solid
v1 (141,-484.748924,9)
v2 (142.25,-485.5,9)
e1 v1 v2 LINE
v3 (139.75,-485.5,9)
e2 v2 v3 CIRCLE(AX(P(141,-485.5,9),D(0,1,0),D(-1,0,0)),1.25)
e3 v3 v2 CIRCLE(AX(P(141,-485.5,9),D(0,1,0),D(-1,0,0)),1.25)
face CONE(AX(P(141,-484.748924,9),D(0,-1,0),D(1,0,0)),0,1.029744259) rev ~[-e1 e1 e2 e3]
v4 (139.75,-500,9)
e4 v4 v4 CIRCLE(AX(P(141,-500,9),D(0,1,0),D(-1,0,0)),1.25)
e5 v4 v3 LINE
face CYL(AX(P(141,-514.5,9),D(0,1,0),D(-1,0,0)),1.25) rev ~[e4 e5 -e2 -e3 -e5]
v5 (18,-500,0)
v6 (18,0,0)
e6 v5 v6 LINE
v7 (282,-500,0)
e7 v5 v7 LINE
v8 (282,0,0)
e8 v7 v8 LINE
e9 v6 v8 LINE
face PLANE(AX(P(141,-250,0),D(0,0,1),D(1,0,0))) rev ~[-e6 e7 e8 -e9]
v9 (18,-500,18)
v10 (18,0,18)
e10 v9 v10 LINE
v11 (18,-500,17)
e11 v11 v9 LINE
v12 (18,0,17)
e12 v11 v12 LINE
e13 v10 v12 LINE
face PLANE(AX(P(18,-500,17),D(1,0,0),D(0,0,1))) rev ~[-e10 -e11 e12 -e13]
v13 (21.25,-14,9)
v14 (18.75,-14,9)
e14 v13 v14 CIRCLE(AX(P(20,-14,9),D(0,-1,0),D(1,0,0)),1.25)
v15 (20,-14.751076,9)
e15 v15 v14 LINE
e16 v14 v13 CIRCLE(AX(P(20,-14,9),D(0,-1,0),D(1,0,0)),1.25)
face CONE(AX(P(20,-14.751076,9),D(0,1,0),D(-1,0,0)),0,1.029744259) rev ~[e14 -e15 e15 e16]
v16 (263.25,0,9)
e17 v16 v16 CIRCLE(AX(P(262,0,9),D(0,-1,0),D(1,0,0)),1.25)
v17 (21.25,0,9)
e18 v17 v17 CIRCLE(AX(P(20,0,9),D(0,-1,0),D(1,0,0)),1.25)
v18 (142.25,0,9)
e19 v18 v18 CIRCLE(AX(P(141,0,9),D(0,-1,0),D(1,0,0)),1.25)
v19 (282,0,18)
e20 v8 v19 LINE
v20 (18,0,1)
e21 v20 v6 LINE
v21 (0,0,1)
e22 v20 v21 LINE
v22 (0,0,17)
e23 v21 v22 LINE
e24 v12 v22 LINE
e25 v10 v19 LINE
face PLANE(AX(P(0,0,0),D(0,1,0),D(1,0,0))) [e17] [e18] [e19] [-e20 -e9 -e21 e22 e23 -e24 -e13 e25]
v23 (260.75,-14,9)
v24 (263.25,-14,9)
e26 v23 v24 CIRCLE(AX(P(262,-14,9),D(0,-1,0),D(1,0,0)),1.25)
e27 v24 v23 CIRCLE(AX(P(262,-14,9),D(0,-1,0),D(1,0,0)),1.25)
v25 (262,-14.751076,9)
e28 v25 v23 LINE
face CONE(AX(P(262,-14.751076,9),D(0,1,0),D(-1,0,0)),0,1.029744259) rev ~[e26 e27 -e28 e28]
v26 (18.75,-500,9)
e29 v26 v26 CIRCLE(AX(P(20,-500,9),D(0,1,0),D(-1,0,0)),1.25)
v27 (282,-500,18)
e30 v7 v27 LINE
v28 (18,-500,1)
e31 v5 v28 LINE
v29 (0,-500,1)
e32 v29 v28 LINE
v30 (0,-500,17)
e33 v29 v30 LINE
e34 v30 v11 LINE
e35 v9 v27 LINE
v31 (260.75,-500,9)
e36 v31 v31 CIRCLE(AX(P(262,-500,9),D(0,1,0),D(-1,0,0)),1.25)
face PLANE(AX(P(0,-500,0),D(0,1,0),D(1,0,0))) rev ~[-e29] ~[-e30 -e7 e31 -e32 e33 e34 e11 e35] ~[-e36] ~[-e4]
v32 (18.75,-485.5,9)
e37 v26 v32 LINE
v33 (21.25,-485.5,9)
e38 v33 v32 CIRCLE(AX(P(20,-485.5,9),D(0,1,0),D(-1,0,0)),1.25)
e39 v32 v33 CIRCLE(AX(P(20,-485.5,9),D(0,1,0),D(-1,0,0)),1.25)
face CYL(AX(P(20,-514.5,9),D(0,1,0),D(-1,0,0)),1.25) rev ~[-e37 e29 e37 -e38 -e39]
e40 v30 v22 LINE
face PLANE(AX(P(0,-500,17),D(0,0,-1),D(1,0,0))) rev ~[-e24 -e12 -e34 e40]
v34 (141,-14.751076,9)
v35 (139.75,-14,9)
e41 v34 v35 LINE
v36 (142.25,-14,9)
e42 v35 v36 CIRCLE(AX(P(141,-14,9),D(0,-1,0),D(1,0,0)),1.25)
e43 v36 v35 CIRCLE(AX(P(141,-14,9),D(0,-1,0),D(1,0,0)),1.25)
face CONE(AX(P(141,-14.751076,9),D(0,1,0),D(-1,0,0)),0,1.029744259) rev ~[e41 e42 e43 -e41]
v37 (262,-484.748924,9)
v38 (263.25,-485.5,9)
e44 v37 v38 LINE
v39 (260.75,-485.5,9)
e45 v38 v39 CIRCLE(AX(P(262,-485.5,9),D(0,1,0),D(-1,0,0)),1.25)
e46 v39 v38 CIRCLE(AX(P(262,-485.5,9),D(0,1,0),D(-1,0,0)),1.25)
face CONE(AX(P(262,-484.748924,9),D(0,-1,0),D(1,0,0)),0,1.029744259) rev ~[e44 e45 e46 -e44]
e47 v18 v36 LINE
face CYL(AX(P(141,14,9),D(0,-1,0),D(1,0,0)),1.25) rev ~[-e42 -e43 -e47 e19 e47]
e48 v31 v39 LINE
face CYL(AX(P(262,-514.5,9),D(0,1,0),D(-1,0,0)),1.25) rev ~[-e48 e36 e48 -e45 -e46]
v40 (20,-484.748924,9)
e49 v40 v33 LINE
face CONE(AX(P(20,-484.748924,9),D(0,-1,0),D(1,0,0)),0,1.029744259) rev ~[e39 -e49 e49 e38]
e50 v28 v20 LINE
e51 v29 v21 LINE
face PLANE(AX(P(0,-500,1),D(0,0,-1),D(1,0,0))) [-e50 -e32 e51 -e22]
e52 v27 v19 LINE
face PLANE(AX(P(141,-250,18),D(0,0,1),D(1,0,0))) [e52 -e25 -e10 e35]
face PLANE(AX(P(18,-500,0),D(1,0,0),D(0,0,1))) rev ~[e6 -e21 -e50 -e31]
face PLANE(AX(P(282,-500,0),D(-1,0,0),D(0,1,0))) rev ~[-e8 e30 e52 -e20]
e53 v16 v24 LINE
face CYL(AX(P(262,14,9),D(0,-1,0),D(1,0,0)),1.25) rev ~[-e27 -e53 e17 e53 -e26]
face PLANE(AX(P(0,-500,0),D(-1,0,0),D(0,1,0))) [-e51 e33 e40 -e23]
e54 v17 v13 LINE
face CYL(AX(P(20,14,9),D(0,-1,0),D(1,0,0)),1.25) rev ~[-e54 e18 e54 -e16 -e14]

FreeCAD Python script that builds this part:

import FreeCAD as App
import Part
import Sketcher

V = App.Vector

doc = App.newDocument("Part")
body = doc.addObject("PartDesign::Body", "Body")

# Sketch on XY plane
sketch1 = doc.addObject("Sketcher::SketchObject", "Sketch")
body.addObject(sketch1)
sketch1.AttachmentSupport = (doc.XY_Plane, [""])
sketch1.MapMode = "FlatFace"
sketch1.addGeometry([
    Part.LineSegment(V(0, 0, 0), V(0, -500, 0)),
    Part.LineSegment(V(0, -500, 0), V(282, -500, 0)),
    Part.LineSegment(V(282, -500, 0), V(282, 0, 0)),
    Part.LineSegment(V(282, 0, 0), V(0, 0, 0)),
], False)
sketch1.addConstraint([
    Sketcher.Constraint("Coincident", 0, 2, 1, 1),
    Sketcher.Constraint("Coincident", 1, 2, 2, 1),
    Sketcher.Constraint("Coincident", 2, 2, 3, 1),
    Sketcher.Constraint("Coincident", 3, 2, 0, 1),
    Sketcher.Constraint("Vertical", 0),
    Sketcher.Constraint("Horizontal", 1),
    Sketcher.Constraint("Vertical", 2),
    Sketcher.Constraint("Horizontal", 3),
    Sketcher.Constraint("Coincident", 3, 2, -1, 1),
    Sketcher.Constraint("DistanceX", 1, 1, 1, 2, 282.0),
    Sketcher.Constraint("DistanceY", 0, 2, 0, 1, 500.0),
])
pad1 = doc.addObject("PartDesign::Pad", "Pad")
body.addObject(pad1)
pad1.Profile = sketch1
pad1.Length = 18

# Sketch on XZ plane
sketch2 = doc.addObject("Sketcher::SketchObject", "Sketch001")
body.addObject(sketch2)
sketch2.AttachmentSupport = (doc.XZ_Plane, [""])
sketch2.MapMode = "FlatFace"
sketch2.AttachmentOffset = App.Placement(V(0, 0, 500), App.Rotation())
sketch2.addGeometry([
    Part.Circle(V(20, 9, 0), V(0, 0, 1), 1.25),
    Part.Circle(V(141, 9, 0), V(0, 0, 1), 1.25),
    Part.Circle(V(262, 9, 0), V(0, 0, 1), 1.25),
], False)
sketch2.addConstraint([
    Sketcher.Constraint("Equal", 0, 1),
    Sketcher.Constraint("Equal", 1, 2),
    Sketcher.Constraint("Horizontal", 0, 3, 1, 3),
    Sketcher.Constraint("Horizontal", 1, 3, 2, 3),
    Sketcher.Constraint("Diameter", 0, 2.5),
    Sketcher.Constraint("DistanceX", -1, 1, 0, 3, 20.0),
    Sketcher.Constraint("DistanceY", -1, 1, 0, 3, 9.0),
    Sketcher.Constraint("DistanceX", -1, 1, 1, 3, 141.0),
    Sketcher.Constraint("DistanceX", -1, 1, 2, 3, 262.0),
])
doc.recompute()
hole = doc.addObject("PartDesign::Hole", "Hole")
body.addObject(hole)
hole.Profile = sketch2
hole.ThreadType = "None"
hole.Diameter = 2.5
hole.DepthType = "Dimension"
hole.Depth = 14.5
hole.DrillPoint = "Angled"
hole.DrillPointAngle = 118

# Sketch on XZ plane
sketch3 = doc.addObject("Sketcher::SketchObject", "Sketch002")
body.addObject(sketch3)
sketch3.AttachmentSupport = (doc.XZ_Plane, [""])
sketch3.MapMode = "FlatFace"
sketch3.addGeometry([
    Part.Circle(V(262, 9, 0), V(0, 0, 1), 1.25),
    Part.Circle(V(141, 9, 0), V(0, 0, 1), 1.25),
    Part.Circle(V(20, 9, 0), V(0, 0, 1), 1.25),
], False)
sketch3.addConstraint([
    Sketcher.Constraint("Equal", 0, 1),
    Sketcher.Constraint("Equal", 1, 2),
    Sketcher.Constraint("Horizontal", 0, 3, 1, 3),
    Sketcher.Constraint("Horizontal", 1, 3, 2, 3),
    Sketcher.Constraint("Diameter", 0, 2.5),
    Sketcher.Constraint("DistanceX", -1, 1, 0, 3, 262.0),
    Sketcher.Constraint("DistanceY", -1, 1, 0, 3, 9.0),
    Sketcher.Constraint("DistanceX", -1, 1, 1, 3, 141.0),
    Sketcher.Constraint("DistanceX", -1, 1, 2, 3, 20.0),
])
doc.recompute()
hole2 = doc.addObject("PartDesign::Hole", "Hole001")
body.addObject(hole2)
hole2.Profile = sketch3
hole2.ThreadType = "None"
hole2.Diameter = 2.5
hole2.DepthType = "Dimension"
hole2.Depth = 14
hole2.DrillPoint = "Angled"
hole2.DrillPointAngle = 118
hole2.Reversed = True

# Sketch on XZ plane
sketch4 = doc.addObject("Sketcher::SketchObject", "Sketch003")
body.addObject(sketch4)
sketch4.AttachmentSupport = (doc.XZ_Plane, [""])
sketch4.MapMode = "FlatFace"
sketch4.AttachmentOffset = App.Placement(V(0, 0, 500), App.Rotation())
sketch4.addGeometry([
    Part.LineSegment(V(0, 18, 0), V(0, 17, 0)),  # 0
    Part.LineSegment(V(0, 17, 0), V(18, 17, 0)),  # 1
    Part.LineSegment(V(18, 17, 0), V(18, 18, 0)),  # 2
    Part.LineSegment(V(18, 18, 0), V(0, 18, 0)),  # 3
    Part.LineSegment(V(0, 1, 0), V(0, 0, 0)),  # 4
    Part.LineSegment(V(0, 0, 0), V(18, 0, 0)),  # 5
    Part.LineSegment(V(18, 0, 0), V(18, 1, 0)),  # 6
    Part.LineSegment(V(18, 1, 0), V(0, 1, 0)),  # 7
], False)
sketch4.addConstraint([
    Sketcher.Constraint("Coincident", 0, 2, 1, 1),
    Sketcher.Constraint("Coincident", 1, 2, 2, 1),
    Sketcher.Constraint("Coincident", 2, 2, 3, 1),
    Sketcher.Constraint("Coincident", 3, 2, 0, 1),
    Sketcher.Constraint("Coincident", 4, 2, 5, 1),
    Sketcher.Constraint("Coincident", 5, 2, 6, 1),
    Sketcher.Constraint("Coincident", 6, 2, 7, 1),
    Sketcher.Constraint("Coincident", 7, 2, 4, 1),
    Sketcher.Constraint("Vertical", 0),
    Sketcher.Constraint("Horizontal", 1),
    Sketcher.Constraint("Vertical", 2),
    Sketcher.Constraint("Horizontal", 3),
    Sketcher.Constraint("Vertical", 4),
    Sketcher.Constraint("Horizontal", 5),
    Sketcher.Constraint("Vertical", 6),
    Sketcher.Constraint("Horizontal", 7),
    Sketcher.Constraint("Coincident", 4, 2, -1, 1),
    Sketcher.Constraint("PointOnObject", 0, 2, -2),
    Sketcher.Constraint("Vertical", 2, 2, 5, 2),
    Sketcher.Constraint("Equal", 2, 4),
    Sketcher.Constraint("DistanceX", 1, 1, 1, 2, 18.0),
    Sketcher.Constraint("DistanceY", 0, 2, 0, 1, 1.0),
    Sketcher.Constraint("DistanceY", -1, 1, 0, 2, 17.0),
])
pocket1 = doc.addObject("PartDesign::Pocket", "Pocket")
body.addObject(pocket1)
pocket1.Profile = sketch4
pocket1.Type = "ThroughAll"

doc.recompute()
